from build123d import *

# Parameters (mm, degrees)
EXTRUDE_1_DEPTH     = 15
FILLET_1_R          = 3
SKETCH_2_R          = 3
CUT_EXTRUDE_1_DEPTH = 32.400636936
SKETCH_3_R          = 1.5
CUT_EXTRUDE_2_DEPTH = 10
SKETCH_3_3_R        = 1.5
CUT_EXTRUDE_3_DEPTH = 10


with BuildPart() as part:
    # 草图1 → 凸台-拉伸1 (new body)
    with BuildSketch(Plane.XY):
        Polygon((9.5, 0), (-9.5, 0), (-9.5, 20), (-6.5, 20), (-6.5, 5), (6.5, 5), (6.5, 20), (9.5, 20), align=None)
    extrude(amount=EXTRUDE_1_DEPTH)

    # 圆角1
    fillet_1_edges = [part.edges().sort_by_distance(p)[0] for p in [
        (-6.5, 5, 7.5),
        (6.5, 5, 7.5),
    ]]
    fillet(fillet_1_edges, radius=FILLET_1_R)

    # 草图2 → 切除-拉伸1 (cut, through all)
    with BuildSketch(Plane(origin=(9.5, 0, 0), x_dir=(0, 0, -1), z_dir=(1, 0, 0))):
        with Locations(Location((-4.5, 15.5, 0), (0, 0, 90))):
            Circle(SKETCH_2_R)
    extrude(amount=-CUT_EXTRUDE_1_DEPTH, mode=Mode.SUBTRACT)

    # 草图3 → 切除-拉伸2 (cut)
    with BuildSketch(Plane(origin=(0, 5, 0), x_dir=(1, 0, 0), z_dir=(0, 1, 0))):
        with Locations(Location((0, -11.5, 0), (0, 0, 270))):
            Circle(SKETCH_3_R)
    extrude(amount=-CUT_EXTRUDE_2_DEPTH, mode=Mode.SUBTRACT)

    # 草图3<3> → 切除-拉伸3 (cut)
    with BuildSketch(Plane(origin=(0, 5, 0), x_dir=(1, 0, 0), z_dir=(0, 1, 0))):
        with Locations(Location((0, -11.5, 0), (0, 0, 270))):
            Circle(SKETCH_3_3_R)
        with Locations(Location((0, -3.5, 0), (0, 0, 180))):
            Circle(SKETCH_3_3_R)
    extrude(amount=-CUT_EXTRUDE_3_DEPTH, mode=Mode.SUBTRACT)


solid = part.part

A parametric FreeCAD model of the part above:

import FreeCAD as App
import Part
import Sketcher
from FreeCAD import Vector


def edges_at(feature, points):
    """Names of the edges that pass closest to the given points."""
    edges = feature.Shape.Edges
    near = lambda p: min(range(len(edges)), key=lambda i: edges[i].distToShape(Part.Vertex(*p))[0])
    return sorted({f"Edge{near(p) + 1}" for p in points})

doc = App.newDocument("Part")
body = doc.addObject("PartDesign::Body", "Body")

sketch1 = body.newObject("Sketcher::SketchObject", "Sketch")
sketch1.AttachmentSupport = (doc.getObject("XY_Plane"), [""])
sketch1.MapMode = "FlatFace"
sketch1.addGeometry(Part.LineSegment(Vector(-9.5, 0, 0), Vector(9.5, 0, 0)), False)
sketch1.addGeometry(Part.LineSegment(Vector(9.5, 0, 0), Vector(9.5, 20, 0)), False)
sketch1.addGeometry(Part.LineSegment(Vector(9.5, 20, 0), Vector(6.5, 20, 0)), False)
sketch1.addGeometry(Part.LineSegment(Vector(6.5, 20, 0), Vector(6.5, 5, 0)), False)
sketch1.addGeometry(Part.LineSegment(Vector(6.5, 5, 0), Vector(-6.5, 5, 0)), False)
sketch1.addGeometry(Part.LineSegment(Vector(-6.5, 5, 0), Vector(-6.5, 20, 0)), False)
sketch1.addGeometry(Part.LineSegment(Vector(-6.5, 20, 0), Vector(-9.5, 20, 0)), False)
sketch1.addGeometry(Part.LineSegment(Vector(-9.5, 20, 0), Vector(-9.5, 0, 0)), False)
sketch1.addConstraint(Sketcher.Constraint("Coincident", 0, 2, 1, 1))
sketch1.addConstraint(Sketcher.Constraint("Coincident", 1, 2, 2, 1))
sketch1.addConstraint(Sketcher.Constraint("Coincident", 2, 2, 3, 1))
sketch1.addConstraint(Sketcher.Constraint("Coincident", 3, 2, 4, 1))
sketch1.addConstraint(Sketcher.Constraint("Coincident", 4, 2, 5, 1))
sketch1.addConstraint(Sketcher.Constraint("Coincident", 5, 2, 6, 1))
sketch1.addConstraint(Sketcher.Constraint("Coincident", 6, 2, 7, 1))
sketch1.addConstraint(Sketcher.Constraint("Coincident", 7, 2, 0, 1))
sketch1.addConstraint(Sketcher.Constraint("Horizontal", 0))
sketch1.addConstraint(Sketcher.Constraint("Vertical", 1))
sketch1.addConstraint(Sketcher.Constraint("Horizontal", 2))
sketch1.addConstraint(Sketcher.Constraint("Vertical", 3))
sketch1.addConstraint(Sketcher.Constraint("Horizontal", 4))
sketch1.addConstraint(Sketcher.Constraint("Vertical", 5))
sketch1.addConstraint(Sketcher.Constraint("Horizontal", 6))
sketch1.addConstraint(Sketcher.Constraint("Vertical", 7))
sketch1.addConstraint(Sketcher.Constraint("Symmetric", 0, 2, 7, 2, -1, 1))
sketch1.addConstraint(Sketcher.Constraint("Symmetric", 2, 2, 5, 2, -2))
sketch1.addConstraint(Sketcher.Constraint("DistanceX", 0, 1, 0, 2, 19.0))
sketch1.addConstraint(Sketcher.Constraint("DistanceX", 2, 2, 2, 1, 3.0))
sketch1.addConstraint(Sketcher.Constraint("DistanceY", 1, 1, 1, 2, 20.0))
sketch1.addConstraint(Sketcher.Constraint("DistanceY", 3, 2, 3, 1, 15.0))
pad1 = body.newObject("PartDesign::Pad", "Pad")
pad1.Profile = sketch1
pad1.Length = 15
doc.recompute()

fillet = body.newObject("PartDesign::Fillet", "Fillet")
fillet.Base = (pad1, edges_at(pad1, [(-6.5, 5, 7.5), (6.5, 5, 7.5)]))
fillet.Radius = 3

sketch2 = body.newObject("Sketcher::SketchObject", "Sketch001")
sketch2.AttachmentSupport = (doc.getObject("YZ_Plane"), [""])
sketch2.MapMode = "FlatFace"
sketch2.AttachmentOffset = App.Placement(Vector(0, 0, 9.5), App.Rotation())
sketch2.addGeometry(Part.Circle(Vector(15.5, 4.5, 0), Vector(0, 0, 1), 3), False)
sketch2.addConstraint(Sketcher.Constraint("Diameter", 0, 6.0))
sketch2.addConstraint(Sketcher.Constraint("DistanceX", -1, 1, 0, 3, 15.5))
sketch2.addConstraint(Sketcher.Constraint("DistanceY", -1, 1, 0, 3, 4.5))
pocket1 = body.newObject("PartDesign::Pocket", "Pocket")
pocket1.Profile = sketch2
pocket1.Type = "ThroughAll"

sketch3 = body.newObject("Sketcher::SketchObject", "Sketch002")
sketch3.AttachmentSupport = (doc.getObject("XZ_Plane"), [""])
sketch3.MapMode = "FlatFace"
sketch3.AttachmentOffset = App.Placement(Vector(0, 0, -5), App.Rotation())
sketch3.addGeometry(Part.Circle(Vector(0, 11.5, 0), Vector(0, 0, 1), 1.5), False)
sketch3.addConstraint(Sketcher.Constraint("PointOnObject", 0, 3, -2))
sketch3.addConstraint(Sketcher.Constraint("Diameter", 0, 3.0))
sketch3.addConstraint(Sketcher.Constraint("DistanceY", -1, 1, 0, 3, 11.5))
pocket2 = body.newObject("PartDesign::Pocket", "Pocket001")
pocket2.Profile = sketch3
pocket2.Length = 10
pocket2.Reversed = True

sketch4 = body.newObject("Sketcher::SketchObject", "Sketch003")
sketch4.AttachmentSupport = (doc.getObject("XZ_Plane"), [""])
sketch4.MapMode = "FlatFace"
sketch4.AttachmentOffset = App.Placement(Vector(0, 0, -5), App.Rotation())
sketch4.addGeometry(Part.Circle(Vector(0, 11.5, 0), Vector(0, 0, 1), 1.5), False)
sketch4.addGeometry(Part.Circle(Vector(0, 3.5, 0), Vector(0, 0, 1), 1.5), False)
sketch4.addConstraint(Sketcher.Constraint("Equal", 0, 1))
sketch4.addConstraint(Sketcher.Constraint("PointOnObject", 0, 3, -2))
sketch4.addConstraint(Sketcher.Constraint("PointOnObject", 1, 3, -2))
sketch4.addConstraint(Sketcher.Constraint("Diameter", 0, 3.0))
sketch4.addConstraint(Sketcher.Constraint("DistanceY", 1, 3, 0, 3, 8.0))
sketch4.addConstraint(Sketcher.Constraint("DistanceY", -1, 1, 0, 3, 11.5))
pocket3 = body.newObject("PartDesign::Pocket", "Pocket002")
pocket3.Profile = sketch4
pocket3.Length = 10
pocket3.Reversed = True

doc.recompute()
